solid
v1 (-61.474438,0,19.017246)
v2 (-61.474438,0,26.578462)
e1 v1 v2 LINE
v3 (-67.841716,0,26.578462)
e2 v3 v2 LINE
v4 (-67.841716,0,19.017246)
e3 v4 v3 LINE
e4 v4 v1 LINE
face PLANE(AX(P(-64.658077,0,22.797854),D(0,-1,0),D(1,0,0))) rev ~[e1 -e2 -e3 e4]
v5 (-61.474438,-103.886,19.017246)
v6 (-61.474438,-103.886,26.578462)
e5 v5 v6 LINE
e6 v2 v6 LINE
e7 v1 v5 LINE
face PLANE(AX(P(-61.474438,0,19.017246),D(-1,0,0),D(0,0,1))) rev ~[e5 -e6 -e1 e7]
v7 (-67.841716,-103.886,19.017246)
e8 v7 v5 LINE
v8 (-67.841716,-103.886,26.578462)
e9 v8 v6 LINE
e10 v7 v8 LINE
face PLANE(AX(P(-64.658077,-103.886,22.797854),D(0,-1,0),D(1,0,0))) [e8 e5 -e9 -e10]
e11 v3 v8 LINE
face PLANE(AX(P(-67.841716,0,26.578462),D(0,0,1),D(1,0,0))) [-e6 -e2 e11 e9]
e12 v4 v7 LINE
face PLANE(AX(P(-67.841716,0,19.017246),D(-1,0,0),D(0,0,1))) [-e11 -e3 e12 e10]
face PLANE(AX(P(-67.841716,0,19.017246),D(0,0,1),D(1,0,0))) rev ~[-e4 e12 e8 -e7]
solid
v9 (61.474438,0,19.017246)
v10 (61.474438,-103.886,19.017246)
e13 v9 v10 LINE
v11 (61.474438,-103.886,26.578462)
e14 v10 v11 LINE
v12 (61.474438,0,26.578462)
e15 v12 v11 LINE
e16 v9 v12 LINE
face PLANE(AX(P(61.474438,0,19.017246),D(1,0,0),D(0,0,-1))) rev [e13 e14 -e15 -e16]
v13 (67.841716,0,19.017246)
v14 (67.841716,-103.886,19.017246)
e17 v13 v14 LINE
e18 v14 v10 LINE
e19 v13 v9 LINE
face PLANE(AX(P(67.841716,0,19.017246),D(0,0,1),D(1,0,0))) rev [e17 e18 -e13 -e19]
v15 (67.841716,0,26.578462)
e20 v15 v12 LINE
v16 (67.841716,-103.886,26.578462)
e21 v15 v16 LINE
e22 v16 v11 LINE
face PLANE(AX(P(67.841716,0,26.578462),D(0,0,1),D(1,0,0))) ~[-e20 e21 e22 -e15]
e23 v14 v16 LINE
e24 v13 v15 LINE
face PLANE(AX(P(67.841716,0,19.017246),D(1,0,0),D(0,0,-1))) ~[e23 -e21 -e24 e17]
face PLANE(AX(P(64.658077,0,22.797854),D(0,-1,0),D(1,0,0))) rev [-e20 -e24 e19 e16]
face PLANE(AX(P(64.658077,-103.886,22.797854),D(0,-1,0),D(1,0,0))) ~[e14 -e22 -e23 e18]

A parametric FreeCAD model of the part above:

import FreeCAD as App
import Part
import Sketcher
Q = App.Units.Quantity

doc = App.newDocument("Part")
body = doc.addObject("PartDesign::Body", "Body")

# Sketch on XZ plane
sketch1 = doc.addObject("Sketcher::SketchObject", "Sketch")
body.addObject(sketch1)
sketch1.AttachmentSupport = (doc.XZ_Plane, [""])
sketch1.MapMode = "FlatFace"
sketch1.addGeometry(Part.LineSegment(App.Vector(-68, 27, 0), App.Vector(-68, 19, 0)), False)
sketch1.addGeometry(Part.LineSegment(App.Vector(-68, 19, 0), App.Vector(-61, 19, 0)), False)
sketch1.addGeometry(Part.LineSegment(App.Vector(-61, 19, 0), App.Vector(-61, 27, 0)), False)
sketch1.addGeometry(Part.LineSegment(App.Vector(-61, 27, 0), App.Vector(-68, 27, 0)), False)
sketch1.addConstraint(Sketcher.Constraint("Coincident", 0, 2, 1, 1))
sketch1.addConstraint(Sketcher.Constraint("Coincident", 1, 2, 2, 1))
sketch1.addConstraint(Sketcher.Constraint("Coincident", 2, 2, 3, 1))
sketch1.addConstraint(Sketcher.Constraint("Coincident", 3, 2, 0, 1))
sketch1.addConstraint(Sketcher.Constraint("Vertical", 0))
sketch1.addConstraint(Sketcher.Constraint("Horizontal", 1))
sketch1.addConstraint(Sketcher.Constraint("Vertical", 2))
sketch1.addConstraint(Sketcher.Constraint("Horizontal", 3))
sketch1.addConstraint(Sketcher.Constraint("DistanceX", 1, 1, 1, 2, 6.367277))
sketch1.addConstraint(Sketcher.Constraint("DistanceY", 0, 2, 0, 1, 7.561216))
sketch1.addConstraint(Sketcher.Constraint("DistanceX", 1, 2, -1, 1, 61.474438))
sketch1.addConstraint(Sketcher.Constraint("DistanceY", -1, 1, 2, 2, 26.578462))
pad1 = doc.addObject("PartDesign::Pad", "Pad")
body.addObject(pad1)
pad1.Profile = sketch1
pad1.Length = Q("4.09 in")
body2 = doc.addObject("PartDesign::Body", "Body001")
doc.recompute()

mirroring = doc.addObject("Part::Mirroring", "Mirroring")
mirroring.Source = body
mirroring.Base = App.Vector(0, 0, 0)
mirroring.Normal = App.Vector(1, 0, 0)
body2.BaseFeature = mirroring
doc.recompute()
mirroring.Visibility = False

doc.recompute()
